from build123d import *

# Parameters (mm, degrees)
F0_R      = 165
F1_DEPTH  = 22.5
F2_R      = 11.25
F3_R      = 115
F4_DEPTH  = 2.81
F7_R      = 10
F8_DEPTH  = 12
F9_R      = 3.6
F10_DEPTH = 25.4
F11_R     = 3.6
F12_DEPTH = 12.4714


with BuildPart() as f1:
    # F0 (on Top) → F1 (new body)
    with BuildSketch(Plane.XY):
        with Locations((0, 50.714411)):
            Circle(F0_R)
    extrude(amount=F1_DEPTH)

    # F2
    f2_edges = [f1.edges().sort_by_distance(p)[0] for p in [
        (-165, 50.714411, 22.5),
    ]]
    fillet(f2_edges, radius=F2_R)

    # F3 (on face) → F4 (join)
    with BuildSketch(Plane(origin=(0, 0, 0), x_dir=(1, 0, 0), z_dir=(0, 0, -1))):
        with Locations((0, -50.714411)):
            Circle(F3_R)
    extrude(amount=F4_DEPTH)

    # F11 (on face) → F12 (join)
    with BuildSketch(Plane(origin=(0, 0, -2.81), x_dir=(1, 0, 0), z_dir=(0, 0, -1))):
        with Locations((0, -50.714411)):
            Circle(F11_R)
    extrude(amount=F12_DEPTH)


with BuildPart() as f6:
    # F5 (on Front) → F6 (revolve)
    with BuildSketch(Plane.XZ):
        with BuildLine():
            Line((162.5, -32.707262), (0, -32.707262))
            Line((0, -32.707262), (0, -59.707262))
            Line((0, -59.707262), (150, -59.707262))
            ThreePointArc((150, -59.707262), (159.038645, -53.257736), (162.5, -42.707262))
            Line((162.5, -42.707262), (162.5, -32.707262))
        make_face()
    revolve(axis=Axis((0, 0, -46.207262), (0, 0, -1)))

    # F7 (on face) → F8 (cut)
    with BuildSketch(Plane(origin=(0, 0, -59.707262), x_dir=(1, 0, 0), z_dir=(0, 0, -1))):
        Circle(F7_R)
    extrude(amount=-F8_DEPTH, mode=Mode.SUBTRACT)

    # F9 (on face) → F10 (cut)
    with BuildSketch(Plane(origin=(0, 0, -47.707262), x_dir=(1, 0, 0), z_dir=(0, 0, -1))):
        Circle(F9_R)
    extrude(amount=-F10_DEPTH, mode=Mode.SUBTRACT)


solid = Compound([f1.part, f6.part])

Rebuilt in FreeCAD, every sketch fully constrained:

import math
import FreeCAD as App
import Part
import Sketcher

V = App.Vector
Q = App.Units.Quantity


def edges_at(feature, points):
    """Names of the edges that pass closest to the given points."""
    edges = feature.Shape.Edges
    near = lambda p: min(range(len(edges)), key=lambda i: edges[i].distToShape(Part.Vertex(*p))[0])
    return sorted({f"Edge{near(p) + 1}" for p in points})

doc = App.newDocument("Part")
body = doc.addObject("PartDesign::Body", "Body")

# Sketch on XY plane
sketch1 = body.newObject("Sketcher::SketchObject", "Sketch")
sketch1.AttachmentSupport = (doc.getObject("XY_Plane"), [""])
sketch1.MapMode = "FlatFace"
sketch1.addGeometry(Part.Circle(V(0, 51, 0), V(0, 0, 1), 165), False)
sketch1.addConstraint(Sketcher.Constraint("PointOnObject", 0, 3, -2))
sketch1.addConstraint(Sketcher.Constraint("Diameter", 0, Q("330 mm")))
sketch1.addConstraint(Sketcher.Constraint("DistanceY", -1, 1, 0, 3, Q("50.714411 mm")))
pad1 = body.newObject("PartDesign::Pad", "Pad")
pad1.Profile = sketch1
pad1.Length = 22.5
doc.recompute()

fillet = body.newObject("PartDesign::Fillet", "Fillet")
fillet.Base = (pad1, edges_at(pad1, [(-165, 50.714, 22.5)]))
fillet.Radius = 11.25

# Sketch on XY plane
sketch2 = body.newObject("Sketcher::SketchObject", "Sketch001")
sketch2.AttachmentSupport = (doc.getObject("XY_Plane"), [""])
sketch2.MapMode = "FlatFace"
sketch2.addGeometry(Part.Circle(V(0, 51, 0), V(0, 0, 1), 115), False)
sketch2.addConstraint(Sketcher.Constraint("PointOnObject", 0, 3, -2))
sketch2.addConstraint(Sketcher.Constraint("Diameter", 0, Q("230 mm")))
sketch2.addConstraint(Sketcher.Constraint("DistanceY", -1, 1, 0, 3, Q("50.714411 mm")))
pad2 = body.newObject("PartDesign::Pad", "Pad001")
pad2.Profile = sketch2
pad2.Length = 2.81
pad2.Reversed = True

# Sketch on XY plane
sketch3 = body.newObject("Sketcher::SketchObject", "Sketch002")
sketch3.AttachmentSupport = (doc.getObject("XY_Plane"), [""])
sketch3.MapMode = "FlatFace"
sketch3.AttachmentOffset = App.Placement(V(0, 0, -2.81), App.Rotation())
sketch3.addGeometry(Part.Circle(V(0, 50.7, 0), V(0, 0, 1), 3.6), False)
sketch3.addConstraint(Sketcher.Constraint("PointOnObject", 0, 3, -2))
sketch3.addConstraint(Sketcher.Constraint("Diameter", 0, Q("7.2 mm")))
sketch3.addConstraint(Sketcher.Constraint("DistanceY", -1, 1, 0, 3, Q("50.714411 mm")))
pad3 = body.newObject("PartDesign::Pad", "Pad002")
pad3.Profile = sketch3
pad3.Length = 12.4714
pad3.Reversed = True
body2 = doc.addObject("PartDesign::Body", "Body001")

# Sketch on XZ plane
sketch4 = body2.newObject("Sketcher::SketchObject", "Sketch003")
sketch4.AttachmentSupport = (doc.getObject("XZ_Plane001"), [""])
sketch4.MapMode = "FlatFace"
sketch4.addGeometry(Part.LineSegment(V(162, -33, 0), V(0, -33, 0)), False)
sketch4.addGeometry(Part.LineSegment(V(0, -33, 0), V(0, -60, 0)), False)
sketch4.addGeometry(Part.LineSegment(V(0, -60, 0), V(150, -60, 0)), False)
sketch4.addGeometry(Part.ArcOfCircle(Part.Circle(V(145, -43, 0), V(0, 0, 1), 18), math.radians(-73), math.radians(0)), False)
sketch4.addGeometry(Part.LineSegment(V(162, -43, 0), V(162, -33, 0)), False)
sketch4.addConstraint(Sketcher.Constraint("Coincident", 0, 2, 1, 1))
sketch4.addConstraint(Sketcher.Constraint("Coincident", 1, 2, 2, 1))
sketch4.addConstraint(Sketcher.Constraint("Coincident", 2, 2, 3, 1))
sketch4.addConstraint(Sketcher.Constraint("Tangent", 3, 2, 4, 1))
sketch4.addConstraint(Sketcher.Constraint("Coincident", 4, 2, 0, 1))
sketch4.addConstraint(Sketcher.Constraint("Horizontal", 0))
sketch4.addConstraint(Sketcher.Constraint("Vertical", 1))
sketch4.addConstraint(Sketcher.Constraint("Horizontal", 2))
sketch4.addConstraint(Sketcher.Constraint("Vertical", 4))
sketch4.addConstraint(Sketcher.Constraint("PointOnObject", 0, 2, -2))
sketch4.addConstraint(Sketcher.Constraint("DistanceX", 2, 1, 2, 2, Q("150 mm")))
sketch4.addConstraint(Sketcher.Constraint("DistanceY", 1, 2, 1, 1, Q("27 mm")))
sketch4.addConstraint(Sketcher.Constraint("DistanceY", 4, 1, 4, 2, Q("10 mm")))
sketch4.addConstraint(Sketcher.Constraint("Radius", 3, Q("17.809998 mm")))
sketch4.addConstraint(Sketcher.Constraint("DistanceY", 3, 3, -1, 1, Q("42.707263 mm")))
revolution = body2.newObject("PartDesign::Revolution", "Revolution")
revolution.Profile = sketch4
revolution.ReferenceAxis = (sketch4, ["V_Axis"])
revolution.Angle = 360

# Sketch on XY plane
sketch5 = body2.newObject("Sketcher::SketchObject", "Sketch004")
sketch5.AttachmentSupport = (doc.getObject("XY_Plane001"), [""])
sketch5.MapMode = "FlatFace"
sketch5.AttachmentOffset = App.Placement(V(0, 0, -59.707262), App.Rotation())
sketch5.addGeometry(Part.Circle(V(0, 0, 0), V(0, 0, 1), 10), False)
sketch5.addConstraint(Sketcher.Constraint("Coincident", 0, 3, -1, 1))
sketch5.addConstraint(Sketcher.Constraint("Diameter", 0, Q("20 mm")))
pocket1 = body2.newObject("PartDesign::Pocket", "Pocket")
pocket1.Profile = sketch5
pocket1.Length = 12
pocket1.Reversed = True

# Sketch on XY plane
sketch6 = body2.newObject("Sketcher::SketchObject", "Sketch005")
sketch6.AttachmentSupport = (doc.getObject("XY_Plane001"), [""])
sketch6.MapMode = "FlatFace"
sketch6.AttachmentOffset = App.Placement(V(0, 0, -47.707262), App.Rotation())
sketch6.addGeometry(Part.Circle(V(0, 0, 0), V(0, 0, 1), 3.6), False)
sketch6.addConstraint(Sketcher.Constraint("Coincident", 0, 3, -1, 1))
sketch6.addConstraint(Sketcher.Constraint("Diameter", 0, Q("7.2 mm")))
pocket2 = body2.newObject("PartDesign::Pocket", "Pocket001")
pocket2.Profile = sketch6
pocket2.Length = 25.4
pocket2.Reversed = True

doc.recompute()
